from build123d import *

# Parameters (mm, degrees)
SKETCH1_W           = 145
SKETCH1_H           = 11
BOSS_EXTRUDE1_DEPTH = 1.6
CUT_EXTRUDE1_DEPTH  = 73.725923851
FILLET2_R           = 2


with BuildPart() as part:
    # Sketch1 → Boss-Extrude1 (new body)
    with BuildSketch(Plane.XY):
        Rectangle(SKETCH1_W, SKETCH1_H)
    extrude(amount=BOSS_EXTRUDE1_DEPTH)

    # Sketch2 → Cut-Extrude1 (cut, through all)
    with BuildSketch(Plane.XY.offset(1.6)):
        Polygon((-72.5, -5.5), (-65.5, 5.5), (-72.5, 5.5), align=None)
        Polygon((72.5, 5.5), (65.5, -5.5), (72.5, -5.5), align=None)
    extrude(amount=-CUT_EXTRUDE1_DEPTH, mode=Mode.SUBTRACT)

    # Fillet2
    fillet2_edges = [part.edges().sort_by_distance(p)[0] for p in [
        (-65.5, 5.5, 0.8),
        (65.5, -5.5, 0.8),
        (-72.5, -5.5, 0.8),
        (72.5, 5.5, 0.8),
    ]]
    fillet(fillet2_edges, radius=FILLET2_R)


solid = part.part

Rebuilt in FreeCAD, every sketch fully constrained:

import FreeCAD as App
import Part
import Sketcher
Q = App.Units.Quantity


def edges_at(feature, points):
    """Names of the edges that pass closest to the given points."""
    edges = feature.Shape.Edges
    near = lambda p: min(range(len(edges)), key=lambda i: edges[i].distToShape(Part.Vertex(*p))[0])
    return sorted({f"Edge{near(p) + 1}" for p in points})


def add_polygon(sketch, points):
    """Adds a closed chain of lines whose ends are joined by coincident constraints."""
    first, n = sketch.GeometryCount, len(points)
    for a, b in zip(points, points[1:] + points[:1]):
        sketch.addGeometry(Part.LineSegment(App.Vector(*a, 0), App.Vector(*b, 0)), False)
    for i in range(n):
        sketch.addConstraint(Sketcher.Constraint("Coincident", first + i, 2, first + (i + 1) % n, 1))

doc = App.newDocument("Part")
body = doc.addObject("PartDesign::Body", "Body")

sketch1 = body.newObject("Sketcher::SketchObject", "Sketch")
sketch1.AttachmentSupport = (doc.getObject("XY_Plane"), [""])
sketch1.MapMode = "FlatFace"
add_polygon(sketch1, [(-72, 6), (-72, -6), (72, -6), (72, 6)])
sketch1.addConstraint([
    Sketcher.Constraint("Vertical", 0),
    Sketcher.Constraint("Horizontal", 1),
    Sketcher.Constraint("Vertical", 2),
    Sketcher.Constraint("Horizontal", 3),
    Sketcher.Constraint("Symmetric", 0, 2, 2, 2, -1, 1),
    Sketcher.Constraint("DistanceX", 1, 1, 1, 2, Q("145 mm")),
    Sketcher.Constraint("DistanceY", 0, 2, 0, 1, Q("11 mm")),
])
pad1 = body.newObject("PartDesign::Pad", "Pad")
pad1.Profile = sketch1
pad1.Length = 1.6

sketch2 = body.newObject("Sketcher::SketchObject", "Sketch001")
sketch2.AttachmentSupport = (doc.getObject("XY_Plane"), [""])
sketch2.MapMode = "FlatFace"
sketch2.AttachmentOffset = App.Placement(App.Vector(0, 0, 1.6), App.Rotation())
add_polygon(sketch2, [(-72, -6), (-66, 6), (-72, 6)])
add_polygon(sketch2, [(72, 6), (66, -6), (72, -6)])
sketch2.addConstraint([
    Sketcher.Constraint("Horizontal", 1),
    Sketcher.Constraint("Vertical", 2),
    Sketcher.Constraint("Horizontal", 4),
    Sketcher.Constraint("Vertical", 5),
    Sketcher.Constraint("Symmetric", 0, 2, 3, 2, -1, 1),
    Sketcher.Constraint("Symmetric", 2, 2, 5, 2, -1, 1),
    Sketcher.Constraint("Horizontal", 2, 2, 3, 2),
    Sketcher.Constraint("DistanceX", 1, 2, 1, 1, Q("7 mm")),
    Sketcher.Constraint("DistanceY", 2, 2, 2, 1, Q("11 mm")),
    Sketcher.Constraint("DistanceX", 0, 2, 3, 2, Q("131 mm")),
])
pocket1 = body.newObject("PartDesign::Pocket", "Pocket")
pocket1.Profile = sketch2
pocket1.Type = "ThroughAll"
doc.recompute()

fillet = body.newObject("PartDesign::Fillet", "Fillet")
fillet.Base = (pocket1, edges_at(pocket1, [
    (-65.5, 5.5, 0.8),
    (65.5, -5.5, 0.8),
    (-72.5, -5.5, 0.8),
    (72.5, 5.5, 0.8),
]))
fillet.Radius = 2

doc.recompute()
